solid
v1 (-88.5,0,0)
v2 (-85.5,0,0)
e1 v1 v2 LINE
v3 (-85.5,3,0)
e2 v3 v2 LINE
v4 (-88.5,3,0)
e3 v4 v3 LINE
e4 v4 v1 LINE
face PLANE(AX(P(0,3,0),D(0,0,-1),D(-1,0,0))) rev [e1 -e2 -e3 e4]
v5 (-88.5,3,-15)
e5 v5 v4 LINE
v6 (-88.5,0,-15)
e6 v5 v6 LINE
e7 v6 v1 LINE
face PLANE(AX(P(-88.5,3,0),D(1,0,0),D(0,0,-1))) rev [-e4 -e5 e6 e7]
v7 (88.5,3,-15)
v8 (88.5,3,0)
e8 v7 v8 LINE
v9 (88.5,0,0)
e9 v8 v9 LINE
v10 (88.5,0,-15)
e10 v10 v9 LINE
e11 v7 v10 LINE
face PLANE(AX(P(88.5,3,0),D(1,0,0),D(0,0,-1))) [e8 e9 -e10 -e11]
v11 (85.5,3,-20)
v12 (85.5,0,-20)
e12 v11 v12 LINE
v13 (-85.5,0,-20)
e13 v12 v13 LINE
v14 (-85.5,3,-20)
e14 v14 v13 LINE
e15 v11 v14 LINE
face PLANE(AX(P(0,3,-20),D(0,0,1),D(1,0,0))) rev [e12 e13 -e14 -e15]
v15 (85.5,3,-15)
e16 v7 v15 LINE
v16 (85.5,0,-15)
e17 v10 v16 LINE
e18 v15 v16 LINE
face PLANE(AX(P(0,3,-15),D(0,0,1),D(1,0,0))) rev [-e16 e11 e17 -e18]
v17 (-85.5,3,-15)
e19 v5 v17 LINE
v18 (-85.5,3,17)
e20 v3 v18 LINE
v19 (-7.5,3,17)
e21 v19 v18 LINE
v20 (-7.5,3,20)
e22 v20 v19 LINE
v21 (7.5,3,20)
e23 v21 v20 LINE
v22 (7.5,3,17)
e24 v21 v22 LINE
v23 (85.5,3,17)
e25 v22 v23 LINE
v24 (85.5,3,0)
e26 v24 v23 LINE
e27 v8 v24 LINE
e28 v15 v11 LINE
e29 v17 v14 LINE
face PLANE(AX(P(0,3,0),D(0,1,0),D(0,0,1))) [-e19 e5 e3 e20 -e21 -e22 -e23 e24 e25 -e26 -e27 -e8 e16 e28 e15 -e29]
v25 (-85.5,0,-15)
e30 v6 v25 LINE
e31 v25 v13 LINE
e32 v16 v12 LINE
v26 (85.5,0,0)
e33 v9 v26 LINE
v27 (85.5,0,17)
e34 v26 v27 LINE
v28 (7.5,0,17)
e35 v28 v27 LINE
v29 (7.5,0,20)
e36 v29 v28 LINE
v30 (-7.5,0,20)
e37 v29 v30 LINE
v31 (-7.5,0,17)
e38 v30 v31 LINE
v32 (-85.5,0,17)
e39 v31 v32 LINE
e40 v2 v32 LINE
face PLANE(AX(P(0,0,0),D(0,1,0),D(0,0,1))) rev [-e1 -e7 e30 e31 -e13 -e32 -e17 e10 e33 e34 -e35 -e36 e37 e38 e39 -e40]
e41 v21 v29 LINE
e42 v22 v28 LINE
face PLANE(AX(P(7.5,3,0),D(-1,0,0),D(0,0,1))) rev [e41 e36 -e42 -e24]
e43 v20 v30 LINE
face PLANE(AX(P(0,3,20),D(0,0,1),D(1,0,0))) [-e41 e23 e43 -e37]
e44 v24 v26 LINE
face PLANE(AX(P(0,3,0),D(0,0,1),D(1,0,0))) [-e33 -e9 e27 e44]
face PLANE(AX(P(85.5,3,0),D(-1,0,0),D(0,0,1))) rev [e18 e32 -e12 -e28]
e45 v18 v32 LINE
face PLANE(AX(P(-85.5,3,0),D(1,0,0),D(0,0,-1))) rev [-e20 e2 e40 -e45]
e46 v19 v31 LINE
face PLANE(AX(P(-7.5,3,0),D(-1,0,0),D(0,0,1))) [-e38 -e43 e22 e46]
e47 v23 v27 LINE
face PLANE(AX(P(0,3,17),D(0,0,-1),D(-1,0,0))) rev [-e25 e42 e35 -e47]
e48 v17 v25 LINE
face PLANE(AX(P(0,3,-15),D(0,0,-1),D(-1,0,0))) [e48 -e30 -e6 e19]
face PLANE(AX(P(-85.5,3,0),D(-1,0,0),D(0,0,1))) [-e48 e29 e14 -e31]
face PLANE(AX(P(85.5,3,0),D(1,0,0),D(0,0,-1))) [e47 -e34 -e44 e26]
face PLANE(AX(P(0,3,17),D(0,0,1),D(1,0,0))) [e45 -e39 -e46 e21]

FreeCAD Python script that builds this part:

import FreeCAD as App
import Part
import Sketcher

V = App.Vector


def add_polygon(sketch, points):
    """Adds a closed chain of lines whose ends are joined by coincident constraints."""
    first, n = sketch.GeometryCount, len(points)
    for a, b in zip(points, points[1:] + points[:1]):
        sketch.addGeometry(Part.LineSegment(App.Vector(*a, 0), App.Vector(*b, 0)), False)
    for i in range(n):
        sketch.addConstraint(Sketcher.Constraint("Coincident", first + i, 2, first + (i + 1) % n, 1))

doc = App.newDocument("Part")
body = doc.addObject("PartDesign::Body", "Body")

sketch1 = doc.addObject("Sketcher::SketchObject", "Sketch")
body.addObject(sketch1)
sketch1.AttachmentSupport = (doc.XZ_Plane, [""])
sketch1.MapMode = "FlatFace"
add_polygon(sketch1, [(-88.5, 0), (-85.5, 0), (-85.5, 17), (-7.5, 17), (-7.5, 20), (7.5, 20), (7.5, 17), (85.5, 17), (85.5, 0), (88.5, 0), (88.5, -15), (85.5, -15), (85.5, -20), (-85.5, -20), (-85.5, -15), (-88.5, -15)])
sketch1.addConstraint([
    Sketcher.Constraint("Horizontal", 0),
    Sketcher.Constraint("Vertical", 1),
    Sketcher.Constraint("Horizontal", 2),
    Sketcher.Constraint("Vertical", 3),
    Sketcher.Constraint("Horizontal", 4),
    Sketcher.Constraint("Vertical", 5),
    Sketcher.Constraint("Horizontal", 6),
    Sketcher.Constraint("Vertical", 7),
    Sketcher.Constraint("Horizontal", 8),
    Sketcher.Constraint("Vertical", 9),
    Sketcher.Constraint("Horizontal", 10),
    Sketcher.Constraint("Vertical", 11),
    Sketcher.Constraint("Horizontal", 12),
    Sketcher.Constraint("Vertical", 13),
    Sketcher.Constraint("Horizontal", 14),
    Sketcher.Constraint("Vertical", 15),
    Sketcher.Constraint("Symmetric", 0, 2, 7, 2, -1, 1),
    Sketcher.Constraint("Symmetric", 2, 2, 5, 2, -2),
    Sketcher.Constraint("Symmetric", 10, 2, 13, 2, -2),
    Sketcher.Constraint("Symmetric", 8, 2, 15, 2, -2),
    Sketcher.Constraint("Vertical", 7, 2, 10, 2),
    Sketcher.Constraint("Equal", 14, 3),
    Sketcher.Constraint("Equal", 4, 9),
    Sketcher.Constraint("DistanceX", 0, 1, 0, 2, 3.0),
    Sketcher.Constraint("DistanceX", 2, 1, 2, 2, 78.0),
    Sketcher.Constraint("DistanceX", 4, 1, 4, 2, 15.0),
    Sketcher.Constraint("DistanceY", 1, 1, 1, 2, 17.0),
    Sketcher.Constraint("DistanceY", 11, 2, 11, 1, 5.0),
])
pad1 = doc.addObject("PartDesign::Pad", "Pad")
body.addObject(pad1)
pad1.Profile = sketch1
pad1.Length = 3
pad1.Reversed = True

doc.recompute()
